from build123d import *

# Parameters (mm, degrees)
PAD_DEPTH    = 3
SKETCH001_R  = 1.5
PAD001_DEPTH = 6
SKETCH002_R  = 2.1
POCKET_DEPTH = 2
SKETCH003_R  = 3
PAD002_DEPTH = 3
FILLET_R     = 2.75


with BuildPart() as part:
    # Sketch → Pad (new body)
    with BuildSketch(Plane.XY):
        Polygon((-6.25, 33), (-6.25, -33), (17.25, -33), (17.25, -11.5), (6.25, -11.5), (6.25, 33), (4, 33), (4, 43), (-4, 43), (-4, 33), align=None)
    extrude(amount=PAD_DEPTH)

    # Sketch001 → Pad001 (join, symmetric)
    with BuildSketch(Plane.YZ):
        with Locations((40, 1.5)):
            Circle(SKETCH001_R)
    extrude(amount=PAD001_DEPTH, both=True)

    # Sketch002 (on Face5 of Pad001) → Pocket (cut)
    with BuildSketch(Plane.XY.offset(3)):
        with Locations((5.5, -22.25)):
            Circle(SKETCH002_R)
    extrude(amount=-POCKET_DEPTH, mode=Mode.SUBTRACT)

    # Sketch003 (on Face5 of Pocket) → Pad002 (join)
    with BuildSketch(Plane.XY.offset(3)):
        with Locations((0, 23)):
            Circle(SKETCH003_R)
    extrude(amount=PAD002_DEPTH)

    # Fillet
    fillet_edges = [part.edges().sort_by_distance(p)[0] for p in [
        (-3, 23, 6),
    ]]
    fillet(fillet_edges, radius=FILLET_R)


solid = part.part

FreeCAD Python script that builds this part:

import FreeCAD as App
import Part
import Sketcher


def edges_at(feature, points):
    """Names of the edges that pass closest to the given points."""
    edges = feature.Shape.Edges
    near = lambda p: min(range(len(edges)), key=lambda i: edges[i].distToShape(Part.Vertex(*p))[0])
    return sorted({f"Edge{near(p) + 1}" for p in points})


def add_polygon(sketch, points):
    """Adds a closed chain of lines whose ends are joined by coincident constraints."""
    first, n = sketch.GeometryCount, len(points)
    for a, b in zip(points, points[1:] + points[:1]):
        sketch.addGeometry(Part.LineSegment(App.Vector(*a, 0), App.Vector(*b, 0)), False)
    for i in range(n):
        sketch.addConstraint(Sketcher.Constraint("Coincident", first + i, 2, first + (i + 1) % n, 1))

doc = App.newDocument("Part")
body = doc.addObject("PartDesign::Body", "Body")

# Sketch on XY plane
sketch1 = body.newObject("Sketcher::SketchObject", "Sketch")
sketch1.AttachmentSupport = (doc.getObject("XY_Plane"), [""])
sketch1.MapMode = "FlatFace"
add_polygon(sketch1, [(-6.25, 33), (-6.25, -33), (17.25, -33), (17.25, -11.5), (6.25, -11.5), (6.25, 33), (4, 33), (4, 43), (-4, 43), (-4, 33)])  # lines 0-9
sketch1.addConstraint([
    Sketcher.Constraint("Vertical", 0),
    Sketcher.Constraint("Horizontal", 1),
    Sketcher.Constraint("Vertical", 2),
    Sketcher.Constraint("Horizontal", 3),
    Sketcher.Constraint("Vertical", 4),
    Sketcher.Constraint("Horizontal", 5),
    Sketcher.Constraint("Vertical", 6),
    Sketcher.Constraint("Horizontal", 7),
    Sketcher.Constraint("Vertical", 8),
    Sketcher.Constraint("Horizontal", 9),
    Sketcher.Constraint("Symmetric", 0, 2, 4, 2, -1, 1),
    Sketcher.Constraint("Symmetric", 5, 2, 8, 2, -2),
    Sketcher.Constraint("DistanceX", 3, 2, 3, 1, 11.0),
    Sketcher.Constraint("DistanceX", 7, 2, 7, 1, 8.0),
    Sketcher.Constraint("DistanceY", 0, 2, 0, 1, 66.0),
    Sketcher.Constraint("DistanceY", 6, 1, 6, 2, 10.0),
    Sketcher.Constraint("DistanceX", 1, 1, 1, 2, 23.5),
    Sketcher.Constraint("DistanceY", 2, 1, 2, 2, 21.5),
])
pad1 = body.newObject("PartDesign::Pad", "Pad")
pad1.Profile = sketch1
pad1.Length = 3

# Sketch on YZ plane
sketch2 = body.newObject("Sketcher::SketchObject", "Sketch001")
sketch2.AttachmentSupport = (doc.getObject("YZ_Plane"), [""])
sketch2.MapMode = "FlatFace"
sketch2.addGeometry(Part.Circle(App.Vector(40, 1.5, 0), App.Vector(0, 0, 1), 1.5), False)
sketch2.addConstraint([
    Sketcher.Constraint("Diameter", 0, 3.0),
    Sketcher.Constraint("DistanceX", -1, 1, 0, 3, 40.0),
    Sketcher.Constraint("DistanceY", -1, 1, 0, 3, 1.5),
])
pad2 = body.newObject("PartDesign::Pad", "Pad001")
pad2.Profile = sketch2
pad2.Length = 12
pad2.Midplane = True

# Sketch on XY plane
sketch3 = body.newObject("Sketcher::SketchObject", "Sketch002")
sketch3.AttachmentSupport = (doc.getObject("XY_Plane"), [""])
sketch3.MapMode = "FlatFace"
sketch3.AttachmentOffset = App.Placement(App.Vector(0, 0, 3), App.Rotation())
sketch3.addGeometry(Part.Circle(App.Vector(5.5, -22.25, 0), App.Vector(0, 0, 1), 2.1), False)
sketch3.addConstraint([
    Sketcher.Constraint("Diameter", 0, 4.2),
    Sketcher.Constraint("DistanceX", -1, 1, 0, 3, 5.5),
    Sketcher.Constraint("DistanceY", 0, 3, -1, 1, 22.25),
])
pocket1 = body.newObject("PartDesign::Pocket", "Pocket")
pocket1.Profile = sketch3
pocket1.Length = 2

# Sketch on XY plane
sketch4 = body.newObject("Sketcher::SketchObject", "Sketch003")
sketch4.AttachmentSupport = (doc.getObject("XY_Plane"), [""])
sketch4.MapMode = "FlatFace"
sketch4.AttachmentOffset = App.Placement(App.Vector(0, 0, 3), App.Rotation())
sketch4.addGeometry(Part.Circle(App.Vector(0, 23, 0), App.Vector(0, 0, 1), 3), False)
sketch4.addConstraint([
    Sketcher.Constraint("PointOnObject", 0, 3, -2),
    Sketcher.Constraint("Diameter", 0, 6.0),
    Sketcher.Constraint("DistanceY", -1, 1, 0, 3, 23.0),
])
pad3 = body.newObject("PartDesign::Pad", "Pad002")
pad3.Profile = sketch4
pad3.Length = 3
doc.recompute()

fillet = body.newObject("PartDesign::Fillet", "Fillet")
fillet.Base = (pad3, edges_at(pad3, [(-3, 23, 6)]))
fillet.Radius = 2.75

doc.recompute()
